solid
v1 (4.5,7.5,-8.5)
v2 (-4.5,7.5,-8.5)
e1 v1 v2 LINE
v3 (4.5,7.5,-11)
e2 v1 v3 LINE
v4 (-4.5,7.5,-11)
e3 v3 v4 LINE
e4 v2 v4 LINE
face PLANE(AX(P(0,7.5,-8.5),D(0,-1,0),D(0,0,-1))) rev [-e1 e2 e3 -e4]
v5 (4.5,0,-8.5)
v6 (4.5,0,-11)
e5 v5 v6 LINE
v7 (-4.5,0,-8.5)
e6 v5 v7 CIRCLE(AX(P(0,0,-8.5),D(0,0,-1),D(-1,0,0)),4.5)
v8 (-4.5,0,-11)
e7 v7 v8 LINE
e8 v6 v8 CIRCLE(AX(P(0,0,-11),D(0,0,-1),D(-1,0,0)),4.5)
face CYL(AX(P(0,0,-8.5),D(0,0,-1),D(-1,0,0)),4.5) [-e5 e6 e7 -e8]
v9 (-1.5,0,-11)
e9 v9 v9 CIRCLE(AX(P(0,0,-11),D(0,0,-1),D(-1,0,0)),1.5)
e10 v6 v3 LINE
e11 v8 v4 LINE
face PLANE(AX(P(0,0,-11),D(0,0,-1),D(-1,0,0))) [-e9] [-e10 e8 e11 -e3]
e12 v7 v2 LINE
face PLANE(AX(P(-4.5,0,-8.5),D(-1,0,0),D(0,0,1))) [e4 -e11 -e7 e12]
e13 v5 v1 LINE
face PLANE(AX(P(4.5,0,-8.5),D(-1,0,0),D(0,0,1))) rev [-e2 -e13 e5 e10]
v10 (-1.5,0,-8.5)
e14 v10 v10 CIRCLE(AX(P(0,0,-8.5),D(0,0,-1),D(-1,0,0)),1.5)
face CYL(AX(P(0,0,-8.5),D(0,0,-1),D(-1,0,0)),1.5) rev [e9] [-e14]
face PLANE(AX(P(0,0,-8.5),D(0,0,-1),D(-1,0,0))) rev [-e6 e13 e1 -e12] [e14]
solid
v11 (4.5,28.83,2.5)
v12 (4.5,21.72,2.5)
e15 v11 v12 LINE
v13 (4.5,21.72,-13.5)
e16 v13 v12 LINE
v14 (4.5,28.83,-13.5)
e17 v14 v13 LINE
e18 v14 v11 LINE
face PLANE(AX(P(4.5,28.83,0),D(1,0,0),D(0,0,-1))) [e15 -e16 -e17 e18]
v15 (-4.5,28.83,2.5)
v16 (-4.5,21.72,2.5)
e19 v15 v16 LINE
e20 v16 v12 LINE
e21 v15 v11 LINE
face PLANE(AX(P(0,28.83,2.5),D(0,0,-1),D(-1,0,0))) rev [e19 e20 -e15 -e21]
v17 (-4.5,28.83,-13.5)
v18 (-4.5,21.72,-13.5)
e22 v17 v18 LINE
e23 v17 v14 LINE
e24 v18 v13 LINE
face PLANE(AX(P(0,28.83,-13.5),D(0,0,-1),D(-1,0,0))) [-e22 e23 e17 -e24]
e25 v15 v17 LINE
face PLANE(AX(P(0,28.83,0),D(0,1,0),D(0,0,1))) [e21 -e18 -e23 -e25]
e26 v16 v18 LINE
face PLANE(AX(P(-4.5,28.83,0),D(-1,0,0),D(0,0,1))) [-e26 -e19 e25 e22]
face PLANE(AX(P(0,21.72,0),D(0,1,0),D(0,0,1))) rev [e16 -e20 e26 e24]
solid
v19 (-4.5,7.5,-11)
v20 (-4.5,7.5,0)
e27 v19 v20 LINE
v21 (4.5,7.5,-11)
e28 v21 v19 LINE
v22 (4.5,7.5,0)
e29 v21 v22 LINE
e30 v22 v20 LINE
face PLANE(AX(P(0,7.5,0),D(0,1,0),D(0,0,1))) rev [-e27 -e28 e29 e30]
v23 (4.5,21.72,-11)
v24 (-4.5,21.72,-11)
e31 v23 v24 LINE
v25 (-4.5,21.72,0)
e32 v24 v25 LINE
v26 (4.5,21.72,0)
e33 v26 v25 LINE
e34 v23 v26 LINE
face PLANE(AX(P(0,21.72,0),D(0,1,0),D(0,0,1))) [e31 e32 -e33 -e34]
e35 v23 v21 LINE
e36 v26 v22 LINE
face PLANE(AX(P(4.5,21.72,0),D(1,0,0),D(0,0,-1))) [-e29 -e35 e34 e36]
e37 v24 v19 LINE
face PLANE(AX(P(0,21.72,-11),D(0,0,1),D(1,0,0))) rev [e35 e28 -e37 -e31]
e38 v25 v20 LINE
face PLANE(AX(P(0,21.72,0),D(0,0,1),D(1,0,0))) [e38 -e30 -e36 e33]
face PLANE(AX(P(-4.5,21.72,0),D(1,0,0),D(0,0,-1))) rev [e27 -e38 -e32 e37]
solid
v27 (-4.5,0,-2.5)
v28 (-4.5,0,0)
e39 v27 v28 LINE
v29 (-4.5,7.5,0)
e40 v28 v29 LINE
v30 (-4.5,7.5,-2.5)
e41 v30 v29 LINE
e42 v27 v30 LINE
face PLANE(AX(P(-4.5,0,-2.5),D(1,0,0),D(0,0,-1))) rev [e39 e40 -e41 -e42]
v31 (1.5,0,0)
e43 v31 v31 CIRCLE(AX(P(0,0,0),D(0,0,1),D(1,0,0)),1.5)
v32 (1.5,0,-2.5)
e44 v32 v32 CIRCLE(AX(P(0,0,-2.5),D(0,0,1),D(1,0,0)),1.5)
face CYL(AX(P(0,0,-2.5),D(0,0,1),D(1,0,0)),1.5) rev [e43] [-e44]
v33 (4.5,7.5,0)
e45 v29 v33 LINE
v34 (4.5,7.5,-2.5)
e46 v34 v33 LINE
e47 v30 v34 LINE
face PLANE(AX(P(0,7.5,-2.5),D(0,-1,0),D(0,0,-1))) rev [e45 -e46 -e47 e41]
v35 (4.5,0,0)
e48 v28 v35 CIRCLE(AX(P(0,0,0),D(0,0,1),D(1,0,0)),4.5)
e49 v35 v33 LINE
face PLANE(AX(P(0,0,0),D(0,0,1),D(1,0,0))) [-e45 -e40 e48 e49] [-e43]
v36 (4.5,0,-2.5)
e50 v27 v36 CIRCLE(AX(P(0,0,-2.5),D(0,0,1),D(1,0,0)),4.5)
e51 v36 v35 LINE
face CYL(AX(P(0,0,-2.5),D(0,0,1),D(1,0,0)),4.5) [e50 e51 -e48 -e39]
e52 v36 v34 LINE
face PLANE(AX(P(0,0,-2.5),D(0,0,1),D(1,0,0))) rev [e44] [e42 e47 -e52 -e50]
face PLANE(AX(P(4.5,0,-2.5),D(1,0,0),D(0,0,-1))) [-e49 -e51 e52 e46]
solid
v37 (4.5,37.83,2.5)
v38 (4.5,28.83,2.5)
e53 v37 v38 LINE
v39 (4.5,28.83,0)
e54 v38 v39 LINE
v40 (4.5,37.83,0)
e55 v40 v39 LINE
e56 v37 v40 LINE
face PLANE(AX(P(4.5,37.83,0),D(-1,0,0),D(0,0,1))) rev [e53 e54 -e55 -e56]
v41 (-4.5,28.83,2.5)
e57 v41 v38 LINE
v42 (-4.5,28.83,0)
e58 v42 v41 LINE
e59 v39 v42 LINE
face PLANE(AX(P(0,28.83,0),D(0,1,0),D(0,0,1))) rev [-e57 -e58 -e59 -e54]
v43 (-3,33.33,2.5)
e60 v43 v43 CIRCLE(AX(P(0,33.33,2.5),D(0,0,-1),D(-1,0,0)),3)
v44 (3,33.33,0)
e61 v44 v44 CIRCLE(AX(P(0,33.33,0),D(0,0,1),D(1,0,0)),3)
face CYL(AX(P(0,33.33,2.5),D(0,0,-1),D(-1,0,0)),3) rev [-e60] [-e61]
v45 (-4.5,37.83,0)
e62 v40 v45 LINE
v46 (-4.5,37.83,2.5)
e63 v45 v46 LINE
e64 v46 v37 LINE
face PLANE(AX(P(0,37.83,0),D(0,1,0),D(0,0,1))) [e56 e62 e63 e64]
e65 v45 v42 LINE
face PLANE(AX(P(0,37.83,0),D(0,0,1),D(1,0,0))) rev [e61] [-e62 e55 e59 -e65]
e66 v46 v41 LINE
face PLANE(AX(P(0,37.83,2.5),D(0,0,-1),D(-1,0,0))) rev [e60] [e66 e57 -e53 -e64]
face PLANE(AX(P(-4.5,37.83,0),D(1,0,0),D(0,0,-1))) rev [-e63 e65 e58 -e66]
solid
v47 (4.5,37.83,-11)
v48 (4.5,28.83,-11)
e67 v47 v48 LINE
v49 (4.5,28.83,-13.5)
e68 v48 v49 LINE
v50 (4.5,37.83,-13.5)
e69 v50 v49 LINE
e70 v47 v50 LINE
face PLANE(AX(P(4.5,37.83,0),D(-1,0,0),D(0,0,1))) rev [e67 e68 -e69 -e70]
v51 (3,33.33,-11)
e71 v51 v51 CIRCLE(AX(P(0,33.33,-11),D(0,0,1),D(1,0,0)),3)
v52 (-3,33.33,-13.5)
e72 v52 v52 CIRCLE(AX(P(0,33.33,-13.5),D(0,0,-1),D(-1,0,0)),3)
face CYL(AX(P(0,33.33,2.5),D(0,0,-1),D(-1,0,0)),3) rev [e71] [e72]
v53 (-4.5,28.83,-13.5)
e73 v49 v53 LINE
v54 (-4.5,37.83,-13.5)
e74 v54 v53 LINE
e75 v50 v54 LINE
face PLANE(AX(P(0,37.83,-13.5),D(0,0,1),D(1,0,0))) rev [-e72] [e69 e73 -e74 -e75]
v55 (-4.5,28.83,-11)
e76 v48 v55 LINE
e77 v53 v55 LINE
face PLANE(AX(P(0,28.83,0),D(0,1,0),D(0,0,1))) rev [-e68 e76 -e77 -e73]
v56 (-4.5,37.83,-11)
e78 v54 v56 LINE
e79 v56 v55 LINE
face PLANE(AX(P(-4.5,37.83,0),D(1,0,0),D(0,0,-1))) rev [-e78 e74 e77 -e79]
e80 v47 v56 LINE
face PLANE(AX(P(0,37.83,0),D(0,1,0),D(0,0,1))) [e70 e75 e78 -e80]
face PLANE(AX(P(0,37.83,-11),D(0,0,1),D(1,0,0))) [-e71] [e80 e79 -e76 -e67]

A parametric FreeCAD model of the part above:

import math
import FreeCAD as App
import Part
import Sketcher
from FreeCAD import Vector
Q = App.Units.Quantity

doc = App.newDocument("Part")
body = doc.addObject("PartDesign::Body", "Body")

# Sketch on XY plane
sketch1 = body.newObject("Sketcher::SketchObject", "Sketch")
sketch1.AttachmentSupport = (doc.getObject("XY_Plane"), [""])
sketch1.MapMode = "FlatFace"
sketch1.addGeometry([
    Part.ArcOfCircle(Part.Circle(Vector(0, 0, 0), Vector(0, 0, 1), 4.5), math.radians(180), math.radians(360)),  # 0
    Part.LineSegment(Vector(4.5, 0, 0), Vector(4.5, 7.5, 0)),  # 1
    Part.LineSegment(Vector(4.5, 7.5, 0), Vector(-4.5, 7.5, 0)),  # 2
    Part.LineSegment(Vector(-4.5, 7.5, 0), Vector(-4.5, 0, 0)),  # 3
    Part.Circle(Vector(0, 0, 0), Vector(0, 0, 1), 1.5),  # 4
], False)
sketch1.addConstraint([
    Sketcher.Constraint("Tangent", 0, 2, 1, 1),
    Sketcher.Constraint("Coincident", 1, 2, 2, 1),
    Sketcher.Constraint("Coincident", 2, 2, 3, 1),
    Sketcher.Constraint("Tangent", 3, 2, 0, 1),
    Sketcher.Constraint("Vertical", 1),
    Sketcher.Constraint("Horizontal", 2),
    Sketcher.Constraint("Vertical", 3),
    Sketcher.Constraint("Coincident", 0, 3, -1, 1),
    Sketcher.Constraint("Coincident", 4, 3, -1, 1),
    Sketcher.Constraint("Diameter", 4, Q("3 mm")),
    Sketcher.Constraint("Radius", 0, Q("4.5 mm")),
    Sketcher.Constraint("DistanceY", 1, 1, 1, 2, Q("7.5 mm")),
])
pad1 = body.newObject("PartDesign::Pad", "Pad")
pad1.Profile = sketch1
pad1.Length = 2.5
pad1.Reversed = True
body2 = doc.addObject("PartDesign::Body", "Body001")

# Sketch on XY plane
sketch2 = body2.newObject("Sketcher::SketchObject", "Sketch001")
sketch2.AttachmentSupport = (doc.getObject("XY_Plane001"), [""])
sketch2.MapMode = "FlatFace"
sketch2.AttachmentOffset = App.Placement(Vector(0, 0, -11), App.Rotation())
sketch2.addGeometry([
    Part.ArcOfCircle(Part.Circle(Vector(0, 0, 0), Vector(0, 0, 1), 4.5), math.radians(180), math.radians(360)),  # 0
    Part.LineSegment(Vector(-4.5, 0, 0), Vector(-4.5, 7.5, 0)),  # 1
    Part.LineSegment(Vector(-4.5, 7.5, 0), Vector(4.5, 7.5, 0)),  # 2
    Part.LineSegment(Vector(4.5, 7.5, 0), Vector(4.5, 0, 0)),  # 3
    Part.Circle(Vector(0, 0, 0), Vector(0, 0, 1), 1.5),  # 4
], False)
sketch2.addConstraint([
    Sketcher.Constraint("Tangent", 0, 1, 1, 1),
    Sketcher.Constraint("Coincident", 1, 2, 2, 1),
    Sketcher.Constraint("Coincident", 2, 2, 3, 1),
    Sketcher.Constraint("Tangent", 3, 2, 0, 2),
    Sketcher.Constraint("Vertical", 1),
    Sketcher.Constraint("Horizontal", 2),
    Sketcher.Constraint("Vertical", 3),
    Sketcher.Constraint("Coincident", 0, 3, -1, 1),
    Sketcher.Constraint("Coincident", 4, 3, -1, 1),
    Sketcher.Constraint("Diameter", 4, Q("3 mm")),
    Sketcher.Constraint("Radius", 0, Q("4.5 mm")),
    Sketcher.Constraint("DistanceY", 1, 1, 1, 2, Q("7.5 mm")),
])
pad2 = body2.newObject("PartDesign::Pad", "Pad001")
pad2.Profile = sketch2
pad2.Length = 2.5
body3 = doc.addObject("PartDesign::Body", "Body002")

# Sketch on XZ plane
sketch3 = body3.newObject("Sketcher::SketchObject", "Sketch002")
sketch3.AttachmentSupport = (doc.getObject("XZ_Plane002"), [""])
sketch3.MapMode = "FlatFace"
sketch3.AttachmentOffset = App.Placement(Vector(0, 0, -7.5), App.Rotation())
sketch3.addGeometry([
    Part.LineSegment(Vector(-4.5, -11, 0), Vector(-4.5, 0, 0)),
    Part.LineSegment(Vector(-4.5, 0, 0), Vector(4.5, 0, 0)),
    Part.LineSegment(Vector(4.5, 0, 0), Vector(4.5, -11, 0)),
    Part.LineSegment(Vector(4.5, -11, 0), Vector(-4.5, -11, 0)),
], False)
sketch3.addConstraint([
    Sketcher.Constraint("Coincident", 0, 2, 1, 1),
    Sketcher.Constraint("Coincident", 1, 2, 2, 1),
    Sketcher.Constraint("Coincident", 2, 2, 3, 1),
    Sketcher.Constraint("Coincident", 3, 2, 0, 1),
    Sketcher.Constraint("Vertical", 0),
    Sketcher.Constraint("Horizontal", 1),
    Sketcher.Constraint("Vertical", 2),
    Sketcher.Constraint("Horizontal", 3),
    Sketcher.Constraint("Symmetric", 0, 2, 1, 2, -1, 1),
    Sketcher.Constraint("DistanceX", 1, 1, 1, 2, Q("9 mm")),
    Sketcher.Constraint("DistanceY", 0, 1, 0, 2, Q("11 mm")),
])
pad3 = body3.newObject("PartDesign::Pad", "Pad002")
pad3.Profile = sketch3
pad3.Length = 14.22
pad3.Reversed = True
body4 = doc.addObject("PartDesign::Body", "Body003")

# Sketch on XZ plane
sketch4 = body4.newObject("Sketcher::SketchObject", "Sketch003")
sketch4.AttachmentSupport = (doc.getObject("XZ_Plane003"), [""])
sketch4.MapMode = "FlatFace"
sketch4.AttachmentOffset = App.Placement(Vector(0, 0, -21.72), App.Rotation())
sketch4.addGeometry([
    Part.LineSegment(Vector(-4.5, -13.5, 0), Vector(-4.5, 2.5, 0)),
    Part.LineSegment(Vector(-4.5, 2.5, 0), Vector(4.5, 2.5, 0)),
    Part.LineSegment(Vector(4.5, 2.5, 0), Vector(4.5, -13.5, 0)),
    Part.LineSegment(Vector(4.5, -13.5, 0), Vector(-4.5, -13.5, 0)),
], False)
sketch4.addConstraint([
    Sketcher.Constraint("Coincident", 0, 2, 1, 1),
    Sketcher.Constraint("Coincident", 1, 2, 2, 1),
    Sketcher.Constraint("Coincident", 2, 2, 3, 1),
    Sketcher.Constraint("Coincident", 3, 2, 0, 1),
    Sketcher.Constraint("Vertical", 0),
    Sketcher.Constraint("Horizontal", 1),
    Sketcher.Constraint("Vertical", 2),
    Sketcher.Constraint("Horizontal", 3),
    Sketcher.Constraint("DistanceX", 1, 1, 1, 2, Q("9 mm")),
    Sketcher.Constraint("DistanceY", 0, 1, 0, 2, Q("16 mm")),
    Sketcher.Constraint("DistanceX", 0, 2, -1, 1, Q("4.5 mm")),
    Sketcher.Constraint("DistanceY", -1, 1, 0, 2, Q("2.5 mm")),
])
pad4 = body4.newObject("PartDesign::Pad", "Pad003")
pad4.Profile = sketch4
pad4.Length = 7.11
pad4.Reversed = True
body5 = doc.addObject("PartDesign::Body", "Body004")

# Sketch on XZ plane
sketch5 = body5.newObject("Sketcher::SketchObject", "Sketch004")
sketch5.AttachmentSupport = (doc.getObject("XZ_Plane004"), [""])
sketch5.MapMode = "FlatFace"
sketch5.AttachmentOffset = App.Placement(Vector(0, 0, -28.83), App.Rotation())
sketch5.addGeometry([
    Part.LineSegment(Vector(-4.5, -13.5, 0), Vector(-4.5, -11, 0)),
    Part.LineSegment(Vector(-4.5, -11, 0), Vector(4.5, -11, 0)),
    Part.LineSegment(Vector(4.5, -11, 0), Vector(4.5, -13.5, 0)),
    Part.LineSegment(Vector(4.5, -13.5, 0), Vector(-4.5, -13.5, 0)),
], False)
sketch5.addConstraint([
    Sketcher.Constraint("Coincident", 0, 2, 1, 1),
    Sketcher.Constraint("Coincident", 1, 2, 2, 1),
    Sketcher.Constraint("Coincident", 2, 2, 3, 1),
    Sketcher.Constraint("Coincident", 3, 2, 0, 1),
    Sketcher.Constraint("Vertical", 0),
    Sketcher.Constraint("Horizontal", 1),
    Sketcher.Constraint("Vertical", 2),
    Sketcher.Constraint("Horizontal", 3),
    Sketcher.Constraint("DistanceX", 1, 1, 1, 2, Q("9 mm")),
    Sketcher.Constraint("DistanceY", 0, 1, 0, 2, Q("2.5 mm")),
    Sketcher.Constraint("DistanceY", 0, 2, -1, 1, Q("11 mm")),
    Sketcher.Constraint("DistanceX", 0, 2, -1, 1, Q("4.5 mm")),
])
pad5 = body5.newObject("PartDesign::Pad", "Pad004")
pad5.Profile = sketch5
pad5.Length = 9
pad5.Reversed = True
body6 = doc.addObject("PartDesign::Body", "Body005")

# Sketch on XZ plane
sketch6 = body6.newObject("Sketcher::SketchObject", "Sketch005")
sketch6.AttachmentSupport = (doc.getObject("XZ_Plane005"), [""])
sketch6.MapMode = "FlatFace"
sketch6.AttachmentOffset = App.Placement(Vector(0, 0, -28.83), App.Rotation())
sketch6.addGeometry([
    Part.LineSegment(Vector(-4.5, 0, 0), Vector(-4.5, 2.5, 0)),
    Part.LineSegment(Vector(-4.5, 2.5, 0), Vector(4.5, 2.5, 0)),
    Part.LineSegment(Vector(4.5, 2.5, 0), Vector(4.5, 0, 0)),
    Part.LineSegment(Vector(4.5, 0, 0), Vector(-4.5, 0, 0)),
], False)
sketch6.addConstraint([
    Sketcher.Constraint("Coincident", 0, 2, 1, 1),
    Sketcher.Constraint("Coincident", 1, 2, 2, 1),
    Sketcher.Constraint("Coincident", 2, 2, 3, 1),
    Sketcher.Constraint("Coincident", 3, 2, 0, 1),
    Sketcher.Constraint("Vertical", 0),
    Sketcher.Constraint("Horizontal", 1),
    Sketcher.Constraint("Vertical", 2),
    Sketcher.Constraint("Horizontal", 3),
    Sketcher.Constraint("Symmetric", 2, 2, 3, 2, -1, 1),
    Sketcher.Constraint("DistanceX", 1, 1, 1, 2, Q("9 mm")),
    Sketcher.Constraint("DistanceY", 0, 1, 0, 2, Q("2.5 mm")),
])
pad6 = body6.newObject("PartDesign::Pad", "Pad005")
pad6.Profile = sketch6
pad6.Length = 9
pad6.Reversed = True
body7 = doc.addObject("PartDesign::Body", "Body006")

# Sketch on XY plane
sketch7 = body7.newObject("Sketcher::SketchObject", "Sketch006")
sketch7.AttachmentSupport = (doc.getObject("XY_Plane006"), [""])
sketch7.MapMode = "FlatFace"
sketch7.AttachmentOffset = App.Placement(Vector(0, 0, -13.5), App.Rotation())
sketch7.addGeometry(Part.Circle(Vector(0, 33.33, 0), Vector(0, 0, 1), 3), False)
sketch7.addConstraint([
    Sketcher.Constraint("PointOnObject", 0, 3, -2),
    Sketcher.Constraint("Diameter", 0, Q("6 mm")),
    Sketcher.Constraint("DistanceY", -1, 1, 0, 3, Q("33.33 mm")),
])
pad7 = body7.newObject("PartDesign::Pad", "Pad006")
pad7.Profile = sketch7
pad7.Length = 16
doc.recompute()

body8 = doc.addObject("PartDesign::Body", "Body007")
body8.BaseFeature = body7
boolean = body5.newObject("PartDesign::Boolean", "Boolean")
boolean.Type = "Cut"
boolean.addObjects([body8])
doc.recompute()

boolean2 = body6.newObject("PartDesign::Boolean", "Boolean001")
boolean2.Type = "Cut"
boolean2.addObjects([body7])

doc.recompute()
